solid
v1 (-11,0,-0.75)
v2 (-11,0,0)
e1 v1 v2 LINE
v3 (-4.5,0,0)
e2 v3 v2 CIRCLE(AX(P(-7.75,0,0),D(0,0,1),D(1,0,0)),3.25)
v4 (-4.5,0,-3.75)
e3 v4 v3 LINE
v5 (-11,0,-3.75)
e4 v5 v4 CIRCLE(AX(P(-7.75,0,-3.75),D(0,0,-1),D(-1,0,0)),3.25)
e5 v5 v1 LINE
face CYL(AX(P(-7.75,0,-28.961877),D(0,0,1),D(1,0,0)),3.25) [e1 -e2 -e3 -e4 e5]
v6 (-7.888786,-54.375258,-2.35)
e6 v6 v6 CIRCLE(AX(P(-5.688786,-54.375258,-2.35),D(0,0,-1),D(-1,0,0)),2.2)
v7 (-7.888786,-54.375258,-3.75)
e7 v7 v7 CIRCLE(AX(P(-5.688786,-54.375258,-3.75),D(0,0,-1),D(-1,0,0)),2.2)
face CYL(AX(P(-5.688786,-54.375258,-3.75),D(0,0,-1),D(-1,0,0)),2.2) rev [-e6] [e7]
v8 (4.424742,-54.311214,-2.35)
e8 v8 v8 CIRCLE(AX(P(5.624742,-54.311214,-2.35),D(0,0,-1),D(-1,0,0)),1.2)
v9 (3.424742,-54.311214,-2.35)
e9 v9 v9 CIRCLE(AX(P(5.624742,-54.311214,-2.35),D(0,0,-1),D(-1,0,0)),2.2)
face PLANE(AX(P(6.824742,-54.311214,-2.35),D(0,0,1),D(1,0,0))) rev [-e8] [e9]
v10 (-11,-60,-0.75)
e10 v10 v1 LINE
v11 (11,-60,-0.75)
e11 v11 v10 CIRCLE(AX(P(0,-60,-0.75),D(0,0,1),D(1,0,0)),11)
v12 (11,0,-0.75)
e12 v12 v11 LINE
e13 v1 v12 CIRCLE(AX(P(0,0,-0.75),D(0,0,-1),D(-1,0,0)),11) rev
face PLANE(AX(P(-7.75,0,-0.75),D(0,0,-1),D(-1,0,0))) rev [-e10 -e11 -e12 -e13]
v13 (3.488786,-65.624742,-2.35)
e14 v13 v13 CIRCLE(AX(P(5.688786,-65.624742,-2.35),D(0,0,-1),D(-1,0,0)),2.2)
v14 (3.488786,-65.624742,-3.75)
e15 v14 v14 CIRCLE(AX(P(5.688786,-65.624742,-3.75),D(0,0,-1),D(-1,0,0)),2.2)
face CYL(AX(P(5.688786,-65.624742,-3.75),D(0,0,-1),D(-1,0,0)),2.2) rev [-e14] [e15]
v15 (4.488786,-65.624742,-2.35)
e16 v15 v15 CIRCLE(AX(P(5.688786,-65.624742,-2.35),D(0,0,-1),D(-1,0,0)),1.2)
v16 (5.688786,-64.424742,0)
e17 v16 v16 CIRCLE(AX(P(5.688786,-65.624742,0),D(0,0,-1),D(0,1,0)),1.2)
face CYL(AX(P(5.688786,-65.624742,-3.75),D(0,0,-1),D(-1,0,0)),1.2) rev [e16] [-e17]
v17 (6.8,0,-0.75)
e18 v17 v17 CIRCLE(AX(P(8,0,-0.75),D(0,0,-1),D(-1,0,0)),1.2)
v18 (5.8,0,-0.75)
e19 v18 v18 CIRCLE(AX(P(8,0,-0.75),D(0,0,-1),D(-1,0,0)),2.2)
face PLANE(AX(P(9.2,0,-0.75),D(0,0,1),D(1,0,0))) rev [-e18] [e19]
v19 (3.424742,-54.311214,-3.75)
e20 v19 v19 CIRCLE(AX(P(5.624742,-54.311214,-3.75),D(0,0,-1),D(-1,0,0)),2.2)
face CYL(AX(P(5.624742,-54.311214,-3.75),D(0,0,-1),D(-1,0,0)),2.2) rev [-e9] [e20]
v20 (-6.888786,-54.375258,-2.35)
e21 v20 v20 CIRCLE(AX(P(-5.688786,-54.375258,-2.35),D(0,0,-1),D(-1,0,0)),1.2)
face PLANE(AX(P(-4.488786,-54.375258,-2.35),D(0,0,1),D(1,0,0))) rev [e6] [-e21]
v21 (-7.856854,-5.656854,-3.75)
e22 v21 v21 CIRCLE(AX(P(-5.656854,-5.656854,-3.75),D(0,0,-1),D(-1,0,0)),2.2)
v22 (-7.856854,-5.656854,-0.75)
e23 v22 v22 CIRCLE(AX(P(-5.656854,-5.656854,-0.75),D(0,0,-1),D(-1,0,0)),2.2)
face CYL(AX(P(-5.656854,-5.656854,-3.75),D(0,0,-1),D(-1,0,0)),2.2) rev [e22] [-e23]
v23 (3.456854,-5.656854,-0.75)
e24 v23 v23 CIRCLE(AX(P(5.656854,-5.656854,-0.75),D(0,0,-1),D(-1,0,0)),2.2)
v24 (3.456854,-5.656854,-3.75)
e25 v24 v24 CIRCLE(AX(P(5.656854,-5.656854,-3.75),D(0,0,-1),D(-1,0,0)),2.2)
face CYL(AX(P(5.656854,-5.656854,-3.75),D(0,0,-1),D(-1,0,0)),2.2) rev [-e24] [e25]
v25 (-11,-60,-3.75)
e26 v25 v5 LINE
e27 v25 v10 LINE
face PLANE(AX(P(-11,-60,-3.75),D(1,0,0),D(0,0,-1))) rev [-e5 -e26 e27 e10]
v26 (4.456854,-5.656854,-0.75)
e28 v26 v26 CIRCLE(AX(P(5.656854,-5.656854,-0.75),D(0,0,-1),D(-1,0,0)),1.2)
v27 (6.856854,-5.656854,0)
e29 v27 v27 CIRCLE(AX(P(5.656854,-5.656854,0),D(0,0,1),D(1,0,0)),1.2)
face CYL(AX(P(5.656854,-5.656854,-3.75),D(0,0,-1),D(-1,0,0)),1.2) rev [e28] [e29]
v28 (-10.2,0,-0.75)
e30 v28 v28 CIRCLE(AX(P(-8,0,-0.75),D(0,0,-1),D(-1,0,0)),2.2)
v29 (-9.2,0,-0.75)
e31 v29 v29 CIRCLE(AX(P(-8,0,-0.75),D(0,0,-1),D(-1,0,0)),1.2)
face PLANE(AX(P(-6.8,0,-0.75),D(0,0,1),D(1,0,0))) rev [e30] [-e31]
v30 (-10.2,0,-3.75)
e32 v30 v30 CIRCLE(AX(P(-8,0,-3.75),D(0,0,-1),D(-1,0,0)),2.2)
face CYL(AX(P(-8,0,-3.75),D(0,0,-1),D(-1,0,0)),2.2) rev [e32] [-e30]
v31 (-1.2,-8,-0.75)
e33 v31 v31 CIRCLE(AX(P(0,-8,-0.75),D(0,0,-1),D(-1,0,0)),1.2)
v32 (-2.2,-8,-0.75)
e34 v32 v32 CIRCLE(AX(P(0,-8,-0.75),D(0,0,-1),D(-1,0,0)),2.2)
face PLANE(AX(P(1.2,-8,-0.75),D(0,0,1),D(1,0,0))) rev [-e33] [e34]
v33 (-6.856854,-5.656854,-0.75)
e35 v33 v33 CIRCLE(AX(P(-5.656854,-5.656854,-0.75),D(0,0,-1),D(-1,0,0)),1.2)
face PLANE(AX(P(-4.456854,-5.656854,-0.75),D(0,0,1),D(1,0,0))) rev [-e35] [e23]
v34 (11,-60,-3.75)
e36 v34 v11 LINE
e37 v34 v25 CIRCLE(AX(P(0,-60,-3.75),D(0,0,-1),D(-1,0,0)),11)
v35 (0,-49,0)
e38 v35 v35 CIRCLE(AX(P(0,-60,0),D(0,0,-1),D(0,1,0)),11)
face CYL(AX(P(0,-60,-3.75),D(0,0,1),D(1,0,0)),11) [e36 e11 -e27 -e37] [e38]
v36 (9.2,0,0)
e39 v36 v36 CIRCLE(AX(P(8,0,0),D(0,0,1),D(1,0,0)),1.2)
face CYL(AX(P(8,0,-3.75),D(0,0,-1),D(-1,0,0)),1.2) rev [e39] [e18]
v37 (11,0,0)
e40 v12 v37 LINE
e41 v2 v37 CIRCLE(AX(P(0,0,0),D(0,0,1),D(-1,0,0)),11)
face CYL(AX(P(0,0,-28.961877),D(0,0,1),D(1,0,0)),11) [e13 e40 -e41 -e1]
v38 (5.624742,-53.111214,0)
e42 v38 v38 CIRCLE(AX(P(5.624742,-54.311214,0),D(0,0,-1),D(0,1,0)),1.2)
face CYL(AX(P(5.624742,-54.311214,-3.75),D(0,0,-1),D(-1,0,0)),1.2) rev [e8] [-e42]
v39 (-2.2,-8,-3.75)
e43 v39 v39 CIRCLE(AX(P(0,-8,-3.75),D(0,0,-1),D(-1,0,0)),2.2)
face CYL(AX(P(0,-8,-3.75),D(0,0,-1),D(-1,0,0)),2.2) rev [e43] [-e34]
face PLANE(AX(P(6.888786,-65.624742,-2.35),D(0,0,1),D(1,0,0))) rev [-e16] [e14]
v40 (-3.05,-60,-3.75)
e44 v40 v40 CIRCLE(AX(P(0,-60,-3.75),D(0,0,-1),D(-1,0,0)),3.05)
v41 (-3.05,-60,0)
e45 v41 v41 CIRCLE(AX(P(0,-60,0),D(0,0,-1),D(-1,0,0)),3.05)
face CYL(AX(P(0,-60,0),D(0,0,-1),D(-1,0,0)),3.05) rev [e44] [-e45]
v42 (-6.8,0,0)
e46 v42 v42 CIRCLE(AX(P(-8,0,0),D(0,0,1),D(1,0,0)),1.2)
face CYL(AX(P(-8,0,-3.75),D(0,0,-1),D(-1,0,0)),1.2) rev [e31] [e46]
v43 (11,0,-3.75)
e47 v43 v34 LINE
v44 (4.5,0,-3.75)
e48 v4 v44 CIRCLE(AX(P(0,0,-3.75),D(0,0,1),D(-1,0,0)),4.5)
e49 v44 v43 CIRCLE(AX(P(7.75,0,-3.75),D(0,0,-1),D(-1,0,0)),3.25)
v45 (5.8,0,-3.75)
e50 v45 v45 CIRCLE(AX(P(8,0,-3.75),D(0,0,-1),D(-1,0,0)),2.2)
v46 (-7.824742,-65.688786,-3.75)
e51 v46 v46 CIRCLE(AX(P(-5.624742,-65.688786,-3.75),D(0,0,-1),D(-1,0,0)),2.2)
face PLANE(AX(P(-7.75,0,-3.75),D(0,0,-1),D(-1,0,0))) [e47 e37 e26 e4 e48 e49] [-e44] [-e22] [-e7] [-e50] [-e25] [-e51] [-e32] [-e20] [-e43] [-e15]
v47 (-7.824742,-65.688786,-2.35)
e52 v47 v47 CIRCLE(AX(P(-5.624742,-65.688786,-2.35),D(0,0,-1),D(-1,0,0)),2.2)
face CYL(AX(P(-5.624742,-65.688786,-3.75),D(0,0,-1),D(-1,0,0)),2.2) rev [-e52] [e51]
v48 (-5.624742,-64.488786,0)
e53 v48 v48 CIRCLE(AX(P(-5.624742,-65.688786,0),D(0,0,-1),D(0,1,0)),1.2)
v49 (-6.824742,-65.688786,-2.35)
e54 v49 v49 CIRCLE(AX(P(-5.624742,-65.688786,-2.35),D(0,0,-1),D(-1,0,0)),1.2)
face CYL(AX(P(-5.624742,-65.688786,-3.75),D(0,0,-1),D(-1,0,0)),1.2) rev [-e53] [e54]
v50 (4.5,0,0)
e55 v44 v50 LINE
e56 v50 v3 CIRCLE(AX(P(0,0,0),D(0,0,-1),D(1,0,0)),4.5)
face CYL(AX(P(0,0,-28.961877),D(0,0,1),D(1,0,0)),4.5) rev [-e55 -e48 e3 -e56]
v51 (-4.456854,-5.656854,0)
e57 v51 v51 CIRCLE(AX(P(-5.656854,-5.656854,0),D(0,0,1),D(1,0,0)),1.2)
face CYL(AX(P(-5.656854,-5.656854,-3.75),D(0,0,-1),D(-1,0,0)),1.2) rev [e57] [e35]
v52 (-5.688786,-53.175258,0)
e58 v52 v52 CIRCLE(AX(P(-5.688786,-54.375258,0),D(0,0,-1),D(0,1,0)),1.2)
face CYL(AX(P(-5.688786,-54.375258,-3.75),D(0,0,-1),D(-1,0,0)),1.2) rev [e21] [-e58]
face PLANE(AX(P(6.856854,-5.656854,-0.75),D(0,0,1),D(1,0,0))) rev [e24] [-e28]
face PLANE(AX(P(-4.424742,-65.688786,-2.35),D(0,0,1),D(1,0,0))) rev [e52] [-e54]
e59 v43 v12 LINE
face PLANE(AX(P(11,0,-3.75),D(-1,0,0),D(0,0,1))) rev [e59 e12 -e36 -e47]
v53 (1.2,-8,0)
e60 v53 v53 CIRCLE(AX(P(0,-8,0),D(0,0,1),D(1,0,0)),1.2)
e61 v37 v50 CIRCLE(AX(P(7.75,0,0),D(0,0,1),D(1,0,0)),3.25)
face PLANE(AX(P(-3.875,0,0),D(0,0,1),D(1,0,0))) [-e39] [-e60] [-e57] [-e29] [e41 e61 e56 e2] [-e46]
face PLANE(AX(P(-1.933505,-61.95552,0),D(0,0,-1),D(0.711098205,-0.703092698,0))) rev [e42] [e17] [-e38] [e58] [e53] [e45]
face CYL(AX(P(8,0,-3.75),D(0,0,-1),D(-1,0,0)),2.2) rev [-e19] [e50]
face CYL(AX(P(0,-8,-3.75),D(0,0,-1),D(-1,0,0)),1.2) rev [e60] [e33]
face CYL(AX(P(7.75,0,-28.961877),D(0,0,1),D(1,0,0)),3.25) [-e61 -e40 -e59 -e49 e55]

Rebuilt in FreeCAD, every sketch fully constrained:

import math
import FreeCAD as App
import Part
import Sketcher

V = App.Vector
Q = App.Units.Quantity

doc = App.newDocument("Part")
body = doc.addObject("PartDesign::Body", "Body")

# Sketch on XY plane
sketch1 = body.newObject("Sketcher::SketchObject", "Sketch")
sketch1.AttachmentSupport = (doc.getObject("XY_Plane"), [""])
sketch1.MapMode = "FlatFace"
sketch1.addGeometry([
    Part.ArcOfCircle(Part.Circle(V(0, 0, 0), V(0, 0, 1), 4.5), math.radians(180), math.radians(360)),
    Part.ArcOfCircle(Part.Circle(V(-7.8, 0, 0), V(0, 0, 1), 3.2), math.radians(0), math.radians(180)),
    Part.ArcOfCircle(Part.Circle(V(0, 0, 0), V(0, 0, 1), 11), math.radians(180), math.radians(360)),
    Part.ArcOfCircle(Part.Circle(V(7.8, 0, 0), V(0, 0, 1), 3.2), math.radians(0), math.radians(180)),
], False)
sketch1.addConstraint([
    Sketcher.Constraint("Tangent", 0, 1, 1, 1),
    Sketcher.Constraint("Tangent", 1, 2, 2, 1),
    Sketcher.Constraint("Tangent", 2, 2, 3, 1),
    Sketcher.Constraint("Tangent", 3, 2, 0, 2),
    Sketcher.Constraint("Coincident", 0, 3, -1, 1),
    Sketcher.Constraint("Coincident", 2, 3, -1, 1),
    Sketcher.Constraint("PointOnObject", 1, 3, -1),
    Sketcher.Constraint("PointOnObject", 3, 3, -1),
    Sketcher.Constraint("Radius", 2, Q("11 mm")),
    Sketcher.Constraint("Radius", 0, Q("4.5 mm")),
])
pad1 = body.newObject("PartDesign::Pad", "Pad")
pad1.Profile = sketch1
pad1.Length = 0.75
pad1.Reversed = True

# Sketch on XY plane
sketch2 = body.newObject("Sketcher::SketchObject", "Sketch001")
sketch2.AttachmentSupport = (doc.getObject("XY_Plane"), [""])
sketch2.MapMode = "FlatFace"
sketch2.AttachmentOffset = App.Placement(V(0, 0, -0.75), App.Rotation())
sketch2.addGeometry([
    Part.LineSegment(V(11, 0, 0), V(11, -60, 0)),  # 0
    Part.ArcOfCircle(Part.Circle(V(0, -60, 0), V(0, 0, 1), 11), math.radians(180), math.radians(360)),  # 1
    Part.LineSegment(V(-11, -60, 0), V(-11, 0, 0)),  # 2
    Part.ArcOfCircle(Part.Circle(V(-7.8, 0, 0), V(0, 0, 1), 3.2), math.radians(0), math.radians(180)),  # 3
    Part.ArcOfCircle(Part.Circle(V(0, 0, 0), V(0, 0, 1), 4.5), math.radians(180), math.radians(360)),  # 4
    Part.ArcOfCircle(Part.Circle(V(7.8, 0, 0), V(0, 0, 1), 3.2), math.radians(0), math.radians(180)),  # 5
], False)
sketch2.addConstraint([
    Sketcher.Constraint("Tangent", 0, 2, 1, 2),
    Sketcher.Constraint("Tangent", 1, 1, 2, 1),
    Sketcher.Constraint("Tangent", 2, 2, 3, 2),
    Sketcher.Constraint("Tangent", 3, 1, 4, 1),
    Sketcher.Constraint("Tangent", 4, 2, 5, 2),
    Sketcher.Constraint("Tangent", 5, 1, 0, 1),
    Sketcher.Constraint("Vertical", 0),
    Sketcher.Constraint("Vertical", 2),
    Sketcher.Constraint("Coincident", 4, 3, -1, 1),
    Sketcher.Constraint("Equal", 3, 5),
    Sketcher.Constraint("PointOnObject", 3, 3, -1),
    Sketcher.Constraint("PointOnObject", 5, 3, -1),
    Sketcher.Constraint("Radius", 1, Q("11 mm")),
    Sketcher.Constraint("Radius", 4, Q("4.5 mm")),
    Sketcher.Constraint("DistanceY", 0, 2, 0, 1, Q("60 mm")),
])
pad2 = body.newObject("PartDesign::Pad", "Pad001")
pad2.Profile = sketch2
pad2.Length = 3
pad2.Reversed = True

# Sketch on XY plane
sketch3 = body.newObject("Sketcher::SketchObject", "Sketch002")
sketch3.AttachmentSupport = (doc.getObject("XY_Plane"), [""])
sketch3.MapMode = "FlatFace"
sketch3.AttachmentOffset = App.Placement(V(0, 0, -3.75), App.Rotation())
sketch3.addGeometry([
    Part.Circle(V(8, 0, 0), V(0, 0, 1), 1.2),  # 0
    Part.Circle(V(5.7, -5.7, 0), V(0, 0, 1), 1.2),  # 1
    Part.Circle(V(0, -8, 0), V(0, 0, 1), 1.2),  # 2
    Part.Circle(V(-5.7, -5.7, 0), V(0, 0, 1), 1.2),  # 3
    Part.Circle(V(-8, 0, 0), V(0, 0, 1), 1.2),  # 4
], False)
sketch3.addConstraint([
    Sketcher.Constraint("Equal", 0, 1),
    Sketcher.Constraint("Equal", 1, 2),
    Sketcher.Constraint("Equal", 2, 3),
    Sketcher.Constraint("Equal", 3, 4),
    Sketcher.Constraint("Symmetric", 0, 3, 4, 3, -1, 1),
    Sketcher.Constraint("Symmetric", 1, 3, 3, 3, -2),
    Sketcher.Constraint("PointOnObject", 0, 3, -1),
    Sketcher.Constraint("PointOnObject", 2, 3, -2),
    Sketcher.Constraint("Diameter", 0, Q("2.4 mm")),
    Sketcher.Constraint("DistanceX", -1, 1, 0, 3, Q("8 mm")),
    Sketcher.Constraint("DistanceY", 2, 3, -1, 1, Q("8 mm")),
    Sketcher.Constraint("DistanceX", 3, 3, 1, 3, Q("11.313708 mm")),
    Sketcher.Constraint("DistanceY", 1, 3, -1, 1, Q("5.656854 mm")),
])
doc.recompute()
hole = body.newObject("PartDesign::Hole", "Hole")
hole.Profile = sketch3
hole.ThreadType = "None"
hole.Diameter = 2.4
hole.DepthType = "ThroughAll"
hole.HoleCutType = "Counterbore"
hole.HoleCutDiameter = 4.4
hole.HoleCutDepth = 3
hole.Reversed = True

# Sketch on XY plane
sketch4 = body.newObject("Sketcher::SketchObject", "Sketch003")
sketch4.AttachmentSupport = (doc.getObject("XY_Plane"), [""])
sketch4.MapMode = "FlatFace"
sketch4.addGeometry(Part.Circle(V(0, -60, 0), V(0, 0, 1), 11), False)
sketch4.addConstraint([
    Sketcher.Constraint("PointOnObject", 0, 3, -2),
    Sketcher.Constraint("Diameter", 0, Q("22 mm")),
    Sketcher.Constraint("DistanceY", 0, 3, -1, 1, Q("60 mm")),
])
pad3 = body.newObject("PartDesign::Pad", "Pad002")
pad3.Profile = sketch4
pad3.Length = 0.75
pad3.Reversed = True

# Sketch on XY plane
sketch5 = body.newObject("Sketcher::SketchObject", "Sketch004")
sketch5.AttachmentSupport = (doc.getObject("XY_Plane"), [""])
sketch5.MapMode = "FlatFace"
sketch5.AttachmentOffset = App.Placement(V(0, 0, -3.75), App.Rotation())
sketch5.addGeometry(Part.Circle(V(0, -60, 0), V(0, 0, 1), 3), False)
sketch5.addConstraint([
    Sketcher.Constraint("PointOnObject", 0, 3, -2),
    Sketcher.Constraint("Diameter", 0, Q("6.1 mm")),
    Sketcher.Constraint("DistanceY", 0, 3, -1, 1, Q("60 mm")),
])
pocket1 = body.newObject("PartDesign::Pocket", "Pocket")
pocket1.Profile = sketch5
pocket1.Type = "ThroughAll"
pocket1.Reversed = True

# Sketch on XY plane
sketch6 = body.newObject("Sketcher::SketchObject", "Sketch005")
sketch6.AttachmentSupport = (doc.getObject("XY_Plane"), [""])
sketch6.MapMode = "FlatFace"
sketch6.AttachmentOffset = App.Placement(V(0, 0, -3.75), App.Rotation())
sketch6.addGeometry(Part.Circle(V(-5.6, -65.7, 0), V(0, 0, 1), 1.2), False)
sketch6.addConstraint([
    Sketcher.Constraint("Diameter", 0, Q("2.4 mm")),
    Sketcher.Constraint("DistanceX", 0, 3, -1, 1, Q("5.624742 mm")),
    Sketcher.Constraint("DistanceY", 0, 3, -1, 1, Q("65.688786 mm")),
])
doc.recompute()
hole2 = body.newObject("PartDesign::Hole", "Hole001")
hole2.Profile = sketch6
hole2.ThreadType = "None"
hole2.Diameter = 2.4
hole2.DepthType = "ThroughAll"
hole2.HoleCutType = "Counterbore"
hole2.HoleCutDiameter = 4.4
hole2.HoleCutDepth = 1.4
hole2.Reversed = True
doc.recompute()

datumline = body.newObject("PartDesign::Line", "DatumLine")
datumline.Placement = App.Placement(V(0, -60, 0), App.Rotation(V(0, 0, 1), V(0, 0, 1)))
polarpattern = body.newObject("PartDesign::PolarPattern", "PolarPattern")
polarpattern.Originals = [hole2]
polarpattern.Axis = (datumline, [""])
polarpattern.Angle = 360
polarpattern.Occurrences = 4
body.Tip = polarpattern

doc.recompute()
